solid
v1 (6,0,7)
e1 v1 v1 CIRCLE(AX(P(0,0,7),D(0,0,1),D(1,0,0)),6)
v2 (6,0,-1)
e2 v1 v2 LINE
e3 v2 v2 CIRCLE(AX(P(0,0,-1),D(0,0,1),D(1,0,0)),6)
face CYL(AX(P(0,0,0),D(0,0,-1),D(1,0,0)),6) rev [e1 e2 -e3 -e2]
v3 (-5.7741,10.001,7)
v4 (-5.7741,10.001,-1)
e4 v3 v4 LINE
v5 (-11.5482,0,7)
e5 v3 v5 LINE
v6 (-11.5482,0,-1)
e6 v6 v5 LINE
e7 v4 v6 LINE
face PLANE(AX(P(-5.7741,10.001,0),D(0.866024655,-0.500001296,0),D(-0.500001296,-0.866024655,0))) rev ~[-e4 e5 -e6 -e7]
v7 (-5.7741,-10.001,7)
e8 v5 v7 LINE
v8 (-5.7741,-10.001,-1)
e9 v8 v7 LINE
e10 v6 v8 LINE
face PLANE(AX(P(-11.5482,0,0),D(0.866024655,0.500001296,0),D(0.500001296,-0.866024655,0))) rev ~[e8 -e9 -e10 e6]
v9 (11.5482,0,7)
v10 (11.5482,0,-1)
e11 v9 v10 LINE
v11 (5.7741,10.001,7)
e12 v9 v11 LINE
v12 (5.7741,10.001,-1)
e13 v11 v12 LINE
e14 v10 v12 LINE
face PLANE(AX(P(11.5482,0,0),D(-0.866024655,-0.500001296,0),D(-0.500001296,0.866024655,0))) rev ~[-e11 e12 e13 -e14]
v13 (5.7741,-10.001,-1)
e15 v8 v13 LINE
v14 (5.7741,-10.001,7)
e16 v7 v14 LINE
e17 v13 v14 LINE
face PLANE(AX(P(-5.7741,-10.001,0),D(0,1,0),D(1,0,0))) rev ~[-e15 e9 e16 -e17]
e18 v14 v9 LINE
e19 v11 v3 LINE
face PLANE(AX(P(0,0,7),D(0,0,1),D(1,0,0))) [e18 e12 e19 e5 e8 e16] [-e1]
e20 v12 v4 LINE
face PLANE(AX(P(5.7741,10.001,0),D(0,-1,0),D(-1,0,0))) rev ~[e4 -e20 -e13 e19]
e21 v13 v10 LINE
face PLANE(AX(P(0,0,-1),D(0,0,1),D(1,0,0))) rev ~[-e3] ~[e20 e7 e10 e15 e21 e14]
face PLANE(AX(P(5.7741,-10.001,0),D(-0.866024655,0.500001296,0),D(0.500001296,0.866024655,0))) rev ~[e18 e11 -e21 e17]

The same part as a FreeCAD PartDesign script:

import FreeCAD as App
import Part
import Sketcher
Q = App.Units.Quantity


def add_polygon(sketch, points):
    """Adds a closed chain of lines whose ends are joined by coincident constraints."""
    first, n = sketch.GeometryCount, len(points)
    for a, b in zip(points, points[1:] + points[:1]):
        sketch.addGeometry(Part.LineSegment(App.Vector(*a, 0), App.Vector(*b, 0)), False)
    for i in range(n):
        sketch.addConstraint(Sketcher.Constraint("Coincident", first + i, 2, first + (i + 1) % n, 1))

doc = App.newDocument("Part")
body = doc.addObject("PartDesign::Body", "Body")

# Sketch on XY plane
sketch1 = body.newObject("Sketcher::SketchObject", "Sketch")
sketch1.AttachmentSupport = (doc.getObject("XY_Plane"), [""])
sketch1.MapMode = "FlatFace"
add_polygon(sketch1, [(5.7741, 10.001), (-5.7741, 10.001), (-11.5482, 0), (-5.7741, -10.001), (5.7741, -10.001), (11.5482, 0)])  # lines 0-5
sketch1.addGeometry(Part.Circle(App.Vector(0, 0, 0), App.Vector(0, 0, 1), 6), False)  # 6
sketch1.addConstraint([
    Sketcher.Constraint("Horizontal", 0),
    Sketcher.Constraint("Horizontal", 3),
    Sketcher.Constraint("Coincident", 6, 3, -1, 1),
    Sketcher.Constraint("Symmetric", 0, 2, 3, 2, -1, 1),
    Sketcher.Constraint("Symmetric", 1, 2, 4, 2, -1, 1),
    Sketcher.Constraint("PointOnObject", 1, 2, -1),
    Sketcher.Constraint("Parallel", 2, 5),
    Sketcher.Constraint("Vertical", 0, 2, 2, 2),
    Sketcher.Constraint("Diameter", 6, Q("12 mm")),
    Sketcher.Constraint("Angle", 1, Q("-120 deg")),
    Sketcher.Constraint("DistanceX", 0, 2, 0, 1, Q("11.5482 mm")),
    Sketcher.Constraint("DistanceY", -1, 1, 0, 2, Q("10.001 mm")),
])
pad1 = body.newObject("PartDesign::Pad", "Pad")
pad1.Profile = sketch1
pad1.Type = "TwoLengths"
pad1.Length = 7
pad1.Length2 = 1

doc.recompute()
